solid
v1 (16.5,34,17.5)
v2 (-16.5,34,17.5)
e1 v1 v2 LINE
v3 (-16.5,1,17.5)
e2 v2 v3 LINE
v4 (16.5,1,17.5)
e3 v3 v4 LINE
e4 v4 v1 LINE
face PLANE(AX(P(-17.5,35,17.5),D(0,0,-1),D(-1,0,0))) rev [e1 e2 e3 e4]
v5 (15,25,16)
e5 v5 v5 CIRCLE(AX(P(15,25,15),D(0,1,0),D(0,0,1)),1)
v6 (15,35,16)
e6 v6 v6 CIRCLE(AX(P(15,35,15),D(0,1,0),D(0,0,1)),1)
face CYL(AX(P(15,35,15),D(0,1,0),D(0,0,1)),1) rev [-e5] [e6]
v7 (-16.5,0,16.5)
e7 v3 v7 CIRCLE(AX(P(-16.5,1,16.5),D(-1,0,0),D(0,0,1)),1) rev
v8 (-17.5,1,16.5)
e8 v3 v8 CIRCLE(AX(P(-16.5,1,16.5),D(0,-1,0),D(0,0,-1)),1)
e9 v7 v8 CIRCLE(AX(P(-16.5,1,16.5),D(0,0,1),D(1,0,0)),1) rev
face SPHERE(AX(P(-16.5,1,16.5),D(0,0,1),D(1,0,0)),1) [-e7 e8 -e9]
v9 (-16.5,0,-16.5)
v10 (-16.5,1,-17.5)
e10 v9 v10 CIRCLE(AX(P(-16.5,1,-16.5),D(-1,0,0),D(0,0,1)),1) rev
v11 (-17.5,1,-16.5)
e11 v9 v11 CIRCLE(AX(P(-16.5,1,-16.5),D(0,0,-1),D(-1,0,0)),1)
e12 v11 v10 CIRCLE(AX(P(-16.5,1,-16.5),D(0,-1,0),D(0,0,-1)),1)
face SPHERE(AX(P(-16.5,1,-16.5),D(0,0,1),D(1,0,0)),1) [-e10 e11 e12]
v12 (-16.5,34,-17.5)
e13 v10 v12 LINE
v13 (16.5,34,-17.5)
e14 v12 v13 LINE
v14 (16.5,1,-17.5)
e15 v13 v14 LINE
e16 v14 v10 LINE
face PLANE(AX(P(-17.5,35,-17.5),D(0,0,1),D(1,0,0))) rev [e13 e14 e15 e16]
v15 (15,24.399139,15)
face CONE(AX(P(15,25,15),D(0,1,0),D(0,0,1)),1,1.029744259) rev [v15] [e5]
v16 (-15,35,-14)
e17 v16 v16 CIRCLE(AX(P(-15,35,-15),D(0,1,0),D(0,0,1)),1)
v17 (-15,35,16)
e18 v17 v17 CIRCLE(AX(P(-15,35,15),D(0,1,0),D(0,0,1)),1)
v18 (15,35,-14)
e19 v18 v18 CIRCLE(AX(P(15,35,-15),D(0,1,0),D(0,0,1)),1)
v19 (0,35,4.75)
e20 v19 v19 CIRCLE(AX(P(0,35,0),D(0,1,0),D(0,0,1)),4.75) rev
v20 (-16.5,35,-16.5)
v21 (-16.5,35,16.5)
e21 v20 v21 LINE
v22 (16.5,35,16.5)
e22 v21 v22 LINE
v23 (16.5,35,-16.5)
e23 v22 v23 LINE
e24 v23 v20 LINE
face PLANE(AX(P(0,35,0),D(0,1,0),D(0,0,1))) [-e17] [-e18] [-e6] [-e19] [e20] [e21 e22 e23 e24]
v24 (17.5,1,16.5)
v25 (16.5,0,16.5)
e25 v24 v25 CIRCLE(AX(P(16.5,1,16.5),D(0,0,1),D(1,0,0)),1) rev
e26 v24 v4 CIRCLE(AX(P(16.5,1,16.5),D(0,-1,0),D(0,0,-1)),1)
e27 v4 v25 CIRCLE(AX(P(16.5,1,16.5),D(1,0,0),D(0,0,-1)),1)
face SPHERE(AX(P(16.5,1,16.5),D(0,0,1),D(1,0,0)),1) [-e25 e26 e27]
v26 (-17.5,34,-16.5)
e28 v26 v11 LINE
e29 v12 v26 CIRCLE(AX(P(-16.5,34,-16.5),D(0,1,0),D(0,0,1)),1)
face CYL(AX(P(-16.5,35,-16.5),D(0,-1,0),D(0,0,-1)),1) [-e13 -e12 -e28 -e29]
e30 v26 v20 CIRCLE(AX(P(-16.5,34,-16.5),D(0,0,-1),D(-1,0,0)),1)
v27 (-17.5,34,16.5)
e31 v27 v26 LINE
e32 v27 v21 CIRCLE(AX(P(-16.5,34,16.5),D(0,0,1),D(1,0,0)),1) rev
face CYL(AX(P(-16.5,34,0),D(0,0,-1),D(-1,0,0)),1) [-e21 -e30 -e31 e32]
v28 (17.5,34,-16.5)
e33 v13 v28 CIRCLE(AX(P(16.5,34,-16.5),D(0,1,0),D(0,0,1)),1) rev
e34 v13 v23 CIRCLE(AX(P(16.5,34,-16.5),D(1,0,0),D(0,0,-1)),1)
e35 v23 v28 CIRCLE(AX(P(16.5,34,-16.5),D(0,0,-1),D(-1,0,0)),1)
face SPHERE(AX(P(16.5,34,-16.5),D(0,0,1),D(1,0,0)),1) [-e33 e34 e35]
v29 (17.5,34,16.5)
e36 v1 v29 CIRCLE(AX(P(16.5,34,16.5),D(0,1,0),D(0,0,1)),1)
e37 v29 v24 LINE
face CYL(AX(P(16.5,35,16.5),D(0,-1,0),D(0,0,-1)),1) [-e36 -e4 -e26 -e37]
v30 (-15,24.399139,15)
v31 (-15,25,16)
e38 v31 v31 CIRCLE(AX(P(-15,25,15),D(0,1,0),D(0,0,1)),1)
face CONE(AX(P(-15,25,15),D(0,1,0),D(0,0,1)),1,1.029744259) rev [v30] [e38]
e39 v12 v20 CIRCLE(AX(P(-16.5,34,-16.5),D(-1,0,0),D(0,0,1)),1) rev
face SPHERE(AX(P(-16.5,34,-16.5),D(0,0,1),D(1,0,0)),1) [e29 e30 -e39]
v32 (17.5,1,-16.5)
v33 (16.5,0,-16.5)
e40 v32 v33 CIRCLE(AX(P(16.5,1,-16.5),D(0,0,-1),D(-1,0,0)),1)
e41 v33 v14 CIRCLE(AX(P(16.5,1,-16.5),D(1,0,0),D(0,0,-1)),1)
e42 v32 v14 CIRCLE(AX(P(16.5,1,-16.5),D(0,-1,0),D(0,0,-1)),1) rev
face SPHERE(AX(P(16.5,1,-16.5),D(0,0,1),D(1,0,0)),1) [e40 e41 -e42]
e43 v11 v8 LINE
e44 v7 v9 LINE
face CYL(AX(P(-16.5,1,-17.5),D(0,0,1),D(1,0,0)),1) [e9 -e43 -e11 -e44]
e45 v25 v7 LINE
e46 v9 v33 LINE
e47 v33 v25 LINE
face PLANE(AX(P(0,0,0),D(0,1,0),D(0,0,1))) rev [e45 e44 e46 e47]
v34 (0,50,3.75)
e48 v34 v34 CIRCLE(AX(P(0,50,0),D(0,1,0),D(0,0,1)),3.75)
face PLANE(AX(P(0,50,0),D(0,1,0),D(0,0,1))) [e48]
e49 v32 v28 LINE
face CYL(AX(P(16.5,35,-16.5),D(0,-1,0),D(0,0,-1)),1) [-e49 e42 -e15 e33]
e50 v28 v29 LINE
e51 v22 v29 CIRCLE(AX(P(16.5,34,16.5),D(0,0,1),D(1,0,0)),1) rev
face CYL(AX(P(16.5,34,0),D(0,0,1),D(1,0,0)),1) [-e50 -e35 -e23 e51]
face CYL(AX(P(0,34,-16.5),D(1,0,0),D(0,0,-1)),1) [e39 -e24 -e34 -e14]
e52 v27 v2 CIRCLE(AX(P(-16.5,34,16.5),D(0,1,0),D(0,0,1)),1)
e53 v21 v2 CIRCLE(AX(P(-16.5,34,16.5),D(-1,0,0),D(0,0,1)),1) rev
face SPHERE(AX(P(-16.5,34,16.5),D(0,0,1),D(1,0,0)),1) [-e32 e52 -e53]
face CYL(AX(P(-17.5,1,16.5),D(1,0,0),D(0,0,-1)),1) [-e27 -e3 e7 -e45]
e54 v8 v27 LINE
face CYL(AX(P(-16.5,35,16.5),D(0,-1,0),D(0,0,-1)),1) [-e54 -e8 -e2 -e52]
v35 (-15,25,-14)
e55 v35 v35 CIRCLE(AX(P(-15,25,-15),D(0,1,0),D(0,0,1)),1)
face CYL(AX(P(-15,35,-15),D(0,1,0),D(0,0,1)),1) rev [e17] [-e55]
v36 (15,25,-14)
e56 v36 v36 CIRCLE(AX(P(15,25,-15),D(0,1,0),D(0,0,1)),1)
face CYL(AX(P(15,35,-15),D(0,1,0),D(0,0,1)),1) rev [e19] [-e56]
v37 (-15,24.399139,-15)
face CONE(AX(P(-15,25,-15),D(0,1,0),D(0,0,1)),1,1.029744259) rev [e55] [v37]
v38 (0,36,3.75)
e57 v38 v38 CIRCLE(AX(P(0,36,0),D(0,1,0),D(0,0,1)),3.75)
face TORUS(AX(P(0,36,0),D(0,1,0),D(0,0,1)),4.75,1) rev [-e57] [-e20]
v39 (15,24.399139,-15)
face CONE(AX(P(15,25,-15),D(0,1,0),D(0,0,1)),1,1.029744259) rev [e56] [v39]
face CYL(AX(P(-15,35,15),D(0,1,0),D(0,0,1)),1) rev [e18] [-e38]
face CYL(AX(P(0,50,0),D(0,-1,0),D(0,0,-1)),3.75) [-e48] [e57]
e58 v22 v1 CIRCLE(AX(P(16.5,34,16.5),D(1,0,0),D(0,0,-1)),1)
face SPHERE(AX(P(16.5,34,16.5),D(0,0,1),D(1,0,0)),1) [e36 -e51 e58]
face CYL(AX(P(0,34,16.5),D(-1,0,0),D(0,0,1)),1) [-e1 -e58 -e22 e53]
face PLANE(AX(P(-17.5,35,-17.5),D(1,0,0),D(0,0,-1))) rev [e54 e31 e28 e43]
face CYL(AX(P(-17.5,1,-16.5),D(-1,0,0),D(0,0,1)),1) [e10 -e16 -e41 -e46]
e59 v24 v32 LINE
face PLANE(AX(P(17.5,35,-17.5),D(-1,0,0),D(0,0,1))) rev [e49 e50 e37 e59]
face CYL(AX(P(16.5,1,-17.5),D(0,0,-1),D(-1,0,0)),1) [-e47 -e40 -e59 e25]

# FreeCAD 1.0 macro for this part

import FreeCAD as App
import Part
import Sketcher

V = App.Vector


def edges_at(feature, points):
    """Names of the edges that pass closest to the given points."""
    edges = feature.Shape.Edges
    near = lambda p: min(range(len(edges)), key=lambda i: edges[i].distToShape(Part.Vertex(*p))[0])
    return sorted({f"Edge{near(p) + 1}" for p in points})


def add_polygon(sketch, points):
    """Adds a closed chain of lines whose ends are joined by coincident constraints."""
    first, n = sketch.GeometryCount, len(points)
    for a, b in zip(points, points[1:] + points[:1]):
        sketch.addGeometry(Part.LineSegment(App.Vector(*a, 0), App.Vector(*b, 0)), False)
    for i in range(n):
        sketch.addConstraint(Sketcher.Constraint("Coincident", first + i, 2, first + (i + 1) % n, 1))

doc = App.newDocument("Part")
body = doc.addObject("PartDesign::Body", "Body")

# Sketch on XZ plane
sketch1 = body.newObject("Sketcher::SketchObject", "Sketch")
sketch1.AttachmentSupport = (doc.getObject("XZ_Plane"), [""])
sketch1.MapMode = "FlatFace"
add_polygon(sketch1, [(-17.5, -17.5), (-17.5, 17.5), (17.5, 17.5), (17.5, -17.5)])  # lines 0-3
sketch1.addConstraint([
    Sketcher.Constraint("Vertical", 0),
    Sketcher.Constraint("Horizontal", 1),
    Sketcher.Constraint("Vertical", 2),
    Sketcher.Constraint("Horizontal", 3),
    Sketcher.Constraint("Symmetric", 0, 2, 2, 2, -1, 1),
    Sketcher.Constraint("Equal", 3, 0),
    Sketcher.Constraint("DistanceX", 1, 1, 1, 2, 35.0),
])
pad1 = body.newObject("PartDesign::Pad", "Pad")
pad1.Profile = sketch1
pad1.Length = 35
pad1.Reversed = True

# Sketch on XZ plane
sketch2 = body.newObject("Sketcher::SketchObject", "Sketch001")
sketch2.AttachmentSupport = (doc.getObject("XZ_Plane"), [""])
sketch2.MapMode = "FlatFace"
sketch2.AttachmentOffset = App.Placement(V(0, 0, -35), App.Rotation())
sketch2.addGeometry(Part.Circle(V(0, 0, 0), V(0, 0, 1), 3.75), False)
sketch2.addConstraint([
    Sketcher.Constraint("Coincident", 0, 3, -1, 1),
    Sketcher.Constraint("Diameter", 0, 7.5),
])
pad2 = body.newObject("PartDesign::Pad", "Pad001")
pad2.Profile = sketch2
pad2.Length = 15
pad2.Reversed = True
doc.recompute()

fillet = body.newObject("PartDesign::Fillet", "Fillet")
fillet.Base = (pad2, edges_at(pad2, [
    (-17.5, 35, 0),
    (0, 35, 17.5),
    (0, 35, -3.75),
    (17.5, 35, 0),
    (0, 0, 17.5),
    (-17.5, 0, 0),
    (0, 0, -17.5),
    (17.5, 0, 0),
    (0, 35, -17.5),
    (17.5, 17.5, 17.5),
    (-17.5, 17.5, 17.5),
    (-17.5, 17.5, -17.5),
    (17.5, 17.5, -17.5),
]))
fillet.Radius = 1

# Sketch on XZ plane
sketch3 = body.newObject("Sketcher::SketchObject", "Sketch002")
sketch3.AttachmentSupport = (doc.getObject("XZ_Plane"), [""])
sketch3.MapMode = "FlatFace"
sketch3.AttachmentOffset = App.Placement(V(0, 0, -35), App.Rotation())
sketch3.addGeometry([
    Part.Circle(V(-15, -15, 0), V(0, 0, 1), 1),
    Part.Circle(V(15, -15, 0), V(0, 0, 1), 1),
    Part.Circle(V(15, 15, 0), V(0, 0, 1), 1),
    Part.Circle(V(-15, 15, 0), V(0, 0, 1), 1),
], False)
sketch3.addConstraint([
    Sketcher.Constraint("Equal", 0, 1),
    Sketcher.Constraint("Equal", 1, 2),
    Sketcher.Constraint("Equal", 2, 3),
    Sketcher.Constraint("Symmetric", 0, 3, 2, 3, -1, 1),
    Sketcher.Constraint("Symmetric", 1, 3, 3, 3, -1, 1),
    Sketcher.Constraint("Symmetric", 0, 3, 1, 3, -2),
    Sketcher.Constraint("Diameter", 0, 2.0),
    Sketcher.Constraint("DistanceX", 0, 3, -1, 1, 15.0),
    Sketcher.Constraint("DistanceY", 0, 3, -1, 1, 15.0),
])
doc.recompute()
hole = body.newObject("PartDesign::Hole", "Hole")
hole.Profile = sketch3
hole.ThreadType = "None"
hole.Diameter = 2
hole.DepthType = "Dimension"
hole.Depth = 10
hole.DrillPoint = "Angled"
hole.DrillPointAngle = 118
hole.Reversed = True

doc.recompute()
